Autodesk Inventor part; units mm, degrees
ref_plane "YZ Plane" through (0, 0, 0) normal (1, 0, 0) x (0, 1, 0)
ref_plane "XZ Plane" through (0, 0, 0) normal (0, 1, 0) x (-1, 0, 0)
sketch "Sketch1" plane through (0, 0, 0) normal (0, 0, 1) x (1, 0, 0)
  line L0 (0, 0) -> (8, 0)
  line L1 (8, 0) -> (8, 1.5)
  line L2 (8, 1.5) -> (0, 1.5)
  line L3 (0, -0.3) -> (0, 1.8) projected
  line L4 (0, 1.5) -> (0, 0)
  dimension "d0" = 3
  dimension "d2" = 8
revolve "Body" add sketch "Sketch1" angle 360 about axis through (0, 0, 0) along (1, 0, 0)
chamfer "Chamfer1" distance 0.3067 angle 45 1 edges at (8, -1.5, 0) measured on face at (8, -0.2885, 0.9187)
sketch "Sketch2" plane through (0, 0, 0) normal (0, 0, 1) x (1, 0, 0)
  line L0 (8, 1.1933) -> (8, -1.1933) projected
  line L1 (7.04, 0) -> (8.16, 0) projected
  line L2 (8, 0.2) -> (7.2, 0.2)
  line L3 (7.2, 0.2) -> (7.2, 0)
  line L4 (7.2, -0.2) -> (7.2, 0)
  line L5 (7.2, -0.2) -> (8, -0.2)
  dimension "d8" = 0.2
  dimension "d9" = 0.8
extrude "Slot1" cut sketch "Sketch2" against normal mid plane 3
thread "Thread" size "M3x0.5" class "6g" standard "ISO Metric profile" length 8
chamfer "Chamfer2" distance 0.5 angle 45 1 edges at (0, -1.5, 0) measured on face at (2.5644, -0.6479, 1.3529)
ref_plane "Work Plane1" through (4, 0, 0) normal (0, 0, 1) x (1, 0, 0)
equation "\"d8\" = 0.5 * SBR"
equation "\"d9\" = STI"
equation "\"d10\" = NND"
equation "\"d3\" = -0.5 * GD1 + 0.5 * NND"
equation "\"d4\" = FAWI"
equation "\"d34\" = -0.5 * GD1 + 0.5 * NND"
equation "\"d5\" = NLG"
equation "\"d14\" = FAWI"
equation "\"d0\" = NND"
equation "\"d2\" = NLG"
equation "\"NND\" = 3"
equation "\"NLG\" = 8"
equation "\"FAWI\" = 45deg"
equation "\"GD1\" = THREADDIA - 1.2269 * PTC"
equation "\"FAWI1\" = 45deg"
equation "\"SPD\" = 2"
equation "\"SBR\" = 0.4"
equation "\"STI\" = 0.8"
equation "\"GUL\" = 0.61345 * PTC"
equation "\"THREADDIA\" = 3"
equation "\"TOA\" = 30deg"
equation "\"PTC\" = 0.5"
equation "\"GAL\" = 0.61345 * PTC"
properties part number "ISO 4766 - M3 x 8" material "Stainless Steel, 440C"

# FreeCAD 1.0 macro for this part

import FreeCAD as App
import Part
import Sketcher
Q = App.Units.Quantity


def edges_at(feature, points):
    """Names of the edges that pass closest to the given points."""
    edges = feature.Shape.Edges
    near = lambda p: min(range(len(edges)), key=lambda i: edges[i].distToShape(Part.Vertex(*p))[0])
    return sorted({f"Edge{near(p) + 1}" for p in points})

doc = App.newDocument("Part")
body = doc.addObject("PartDesign::Body", "Body")

# Sketch on XY plane
sketch1 = body.newObject("Sketcher::SketchObject", "Sketch")
sketch1.AttachmentSupport = (doc.getObject("XY_Plane"), [""])
sketch1.MapMode = "FlatFace"
sketch1.addGeometry([
    Part.LineSegment(App.Vector(0, 1.5, 0), App.Vector(0, 0, 0)),
    Part.LineSegment(App.Vector(0, 0, 0), App.Vector(8, 0, 0)),
    Part.LineSegment(App.Vector(8, 0, 0), App.Vector(8, 1.5, 0)),
    Part.LineSegment(App.Vector(8, 1.5, 0), App.Vector(0, 1.5, 0)),
], False)
sketch1.addConstraint([
    Sketcher.Constraint("Coincident", 0, 2, 1, 1),
    Sketcher.Constraint("Coincident", 1, 2, 2, 1),
    Sketcher.Constraint("Coincident", 2, 2, 3, 1),
    Sketcher.Constraint("Coincident", 3, 2, 0, 1),
    Sketcher.Constraint("Vertical", 0),
    Sketcher.Constraint("Horizontal", 1),
    Sketcher.Constraint("Vertical", 2),
    Sketcher.Constraint("Horizontal", 3),
    Sketcher.Constraint("Coincident", 0, 2, -1, 1),
    Sketcher.Constraint("DistanceX", 1, 1, 1, 2, Q("8 mm")),
    Sketcher.Constraint("DistanceY", 0, 2, 0, 1, Q("1.5 mm")),
])
revolution = body.newObject("PartDesign::Revolution", "Revolution")
revolution.Profile = sketch1
revolution.ReferenceAxis = (sketch1, ["H_Axis"])
revolution.Angle = 360
doc.recompute()

chamfer = body.newObject("PartDesign::Chamfer", "Chamfer")
chamfer.Base = (revolution, edges_at(revolution, [(8, -1.5, 0)]))
chamfer.Size = 0.3067

# Sketch on XY plane
sketch2 = body.newObject("Sketcher::SketchObject", "Sketch001")
sketch2.AttachmentSupport = (doc.getObject("XY_Plane"), [""])
sketch2.MapMode = "FlatFace"
sketch2.addGeometry([
    Part.LineSegment(App.Vector(8, 0.2, 0), App.Vector(7.2, 0.2, 0)),
    Part.LineSegment(App.Vector(7.2, 0.2, 0), App.Vector(7.2, -0.2, 0)),
    Part.LineSegment(App.Vector(7.2, -0.2, 0), App.Vector(8, -0.2, 0)),
    Part.LineSegment(App.Vector(8, -0.2, 0), App.Vector(8, 0.2, 0)),
], False)
sketch2.addConstraint([
    Sketcher.Constraint("Coincident", 0, 2, 1, 1),
    Sketcher.Constraint("Coincident", 1, 2, 2, 1),
    Sketcher.Constraint("Coincident", 2, 2, 3, 1),
    Sketcher.Constraint("Coincident", 3, 2, 0, 1),
    Sketcher.Constraint("Horizontal", 0),
    Sketcher.Constraint("Vertical", 1),
    Sketcher.Constraint("Horizontal", 2),
    Sketcher.Constraint("Vertical", 3),
    Sketcher.Constraint("DistanceX", 0, 2, 0, 1, Q("0.8 mm")),
    Sketcher.Constraint("DistanceY", -1, 1, 0, 2, Q("0.2 mm")),
    Sketcher.Constraint("DistanceY", 1, 2, -1, 1, Q("0.2 mm")),
    Sketcher.Constraint("DistanceX", -1, 1, 2, 2, Q("8 mm")),
])
pocket1 = body.newObject("PartDesign::Pocket", "Pocket")
pocket1.Profile = sketch2
pocket1.Length = 3
pocket1.Midplane = True
doc.recompute()

chamfer2 = body.newObject("PartDesign::Chamfer", "Chamfer001")
chamfer2.Base = (pocket1, edges_at(pocket1, [(0, -1.5, 0)]))
chamfer2.Size = 0.5

doc.recompute()
